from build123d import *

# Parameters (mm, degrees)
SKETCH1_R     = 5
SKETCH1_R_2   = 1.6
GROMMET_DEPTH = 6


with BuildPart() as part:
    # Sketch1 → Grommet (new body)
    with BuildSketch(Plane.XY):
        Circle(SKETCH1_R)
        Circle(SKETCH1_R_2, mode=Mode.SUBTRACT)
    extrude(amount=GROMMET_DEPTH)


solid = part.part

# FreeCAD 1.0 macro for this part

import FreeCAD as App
import Part
import Sketcher
from FreeCAD import Vector
Q = App.Units.Quantity

doc = App.newDocument("Part")
body = doc.addObject("PartDesign::Body", "Body")

sketch1 = body.newObject("Sketcher::SketchObject", "Sketch")
sketch1.AttachmentSupport = (doc.getObject("XY_Plane"), [""])
sketch1.MapMode = "FlatFace"
sketch1.addGeometry([
    Part.Circle(Vector(0, 0, 0), Vector(0, 0, 1), 5),
    Part.Circle(Vector(0, 0, 0), Vector(0, 0, 1), 1.6),
], False)
sketch1.addConstraint([
    Sketcher.Constraint("Coincident", 0, 3, -1, 1),
    Sketcher.Constraint("Coincident", 1, 3, -1, 1),
    Sketcher.Constraint("Diameter", 0, Q("10 mm")),
    Sketcher.Constraint("Diameter", 1, Q("3.2 mm")),
])
pad1 = body.newObject("PartDesign::Pad", "Pad")
pad1.Profile = sketch1
pad1.Length = 6

doc.recompute()
